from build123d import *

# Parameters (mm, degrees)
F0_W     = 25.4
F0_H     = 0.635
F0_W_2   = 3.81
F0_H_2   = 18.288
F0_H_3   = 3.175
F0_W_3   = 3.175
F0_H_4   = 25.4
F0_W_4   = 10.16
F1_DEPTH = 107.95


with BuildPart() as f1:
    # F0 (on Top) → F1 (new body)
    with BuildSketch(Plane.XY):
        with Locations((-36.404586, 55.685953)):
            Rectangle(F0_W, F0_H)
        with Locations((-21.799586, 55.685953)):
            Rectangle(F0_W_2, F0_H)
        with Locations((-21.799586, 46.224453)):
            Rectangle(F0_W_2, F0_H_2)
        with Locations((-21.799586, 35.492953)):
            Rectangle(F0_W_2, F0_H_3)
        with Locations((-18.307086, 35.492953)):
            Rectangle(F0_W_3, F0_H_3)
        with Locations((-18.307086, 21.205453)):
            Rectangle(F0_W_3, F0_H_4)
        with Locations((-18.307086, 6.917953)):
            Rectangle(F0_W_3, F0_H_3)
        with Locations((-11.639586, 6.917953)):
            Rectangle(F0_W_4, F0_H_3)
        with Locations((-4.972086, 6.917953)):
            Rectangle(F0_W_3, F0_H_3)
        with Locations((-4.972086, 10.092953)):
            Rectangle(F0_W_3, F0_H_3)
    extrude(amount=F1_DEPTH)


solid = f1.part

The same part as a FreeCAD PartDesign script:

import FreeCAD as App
import Part
import Sketcher
from FreeCAD import Vector
Q = App.Units.Quantity

doc = App.newDocument("Part")
body = doc.addObject("PartDesign::Body", "Body")

# Sketch on XY plane
sketch1 = doc.addObject("Sketcher::SketchObject", "Sketch")
body.addObject(sketch1)
sketch1.AttachmentSupport = (doc.XY_Plane, [""])
sketch1.MapMode = "FlatFace"
sketch1.addGeometry([
    Part.LineSegment(Vector(-49.1, 56, 0), Vector(-49.1, 55.4, 0)),  # 0
    Part.LineSegment(Vector(-49.1, 55.4, 0), Vector(-23.7, 55.4, 0)),  # 1
    Part.LineSegment(Vector(-23.7, 55.4, 0), Vector(-23.7, 33.9, 0)),  # 2
    Part.LineSegment(Vector(-23.7, 33.9, 0), Vector(-19.9, 33.9, 0)),  # 3
    Part.LineSegment(Vector(-19.9, 33.9, 0), Vector(-19.9, 5.3, 0)),  # 4
    Part.LineSegment(Vector(-19.9, 5.3, 0), Vector(-3.4, 5.3, 0)),  # 5
    Part.LineSegment(Vector(-3.4, 5.3, 0), Vector(-3.4, 11.7, 0)),  # 6
    Part.LineSegment(Vector(-3.4, 11.7, 0), Vector(-6.6, 11.7, 0)),  # 7
    Part.LineSegment(Vector(-6.6, 11.7, 0), Vector(-6.6, 8.5, 0)),  # 8
    Part.LineSegment(Vector(-6.6, 8.5, 0), Vector(-16.7, 8.5, 0)),  # 9
    Part.LineSegment(Vector(-16.7, 8.5, 0), Vector(-16.7, 37.1, 0)),  # 10
    Part.LineSegment(Vector(-16.7, 37.1, 0), Vector(-19.9, 37.1, 0)),  # 11
    Part.LineSegment(Vector(-19.9, 37.1, 0), Vector(-19.9, 56, 0)),  # 12
    Part.LineSegment(Vector(-19.9, 56, 0), Vector(-49.1, 56, 0)),  # 13
], False)
sketch1.addConstraint([
    Sketcher.Constraint("Coincident", 0, 2, 1, 1),
    Sketcher.Constraint("Coincident", 1, 2, 2, 1),
    Sketcher.Constraint("Coincident", 2, 2, 3, 1),
    Sketcher.Constraint("Coincident", 3, 2, 4, 1),
    Sketcher.Constraint("Coincident", 4, 2, 5, 1),
    Sketcher.Constraint("Coincident", 5, 2, 6, 1),
    Sketcher.Constraint("Coincident", 6, 2, 7, 1),
    Sketcher.Constraint("Coincident", 7, 2, 8, 1),
    Sketcher.Constraint("Coincident", 8, 2, 9, 1),
    Sketcher.Constraint("Coincident", 9, 2, 10, 1),
    Sketcher.Constraint("Coincident", 10, 2, 11, 1),
    Sketcher.Constraint("Coincident", 11, 2, 12, 1),
    Sketcher.Constraint("Coincident", 12, 2, 13, 1),
    Sketcher.Constraint("Coincident", 13, 2, 0, 1),
    Sketcher.Constraint("Vertical", 0),
    Sketcher.Constraint("Horizontal", 1),
    Sketcher.Constraint("Vertical", 2),
    Sketcher.Constraint("Horizontal", 3),
    Sketcher.Constraint("Vertical", 4),
    Sketcher.Constraint("Horizontal", 5),
    Sketcher.Constraint("Vertical", 6),
    Sketcher.Constraint("Horizontal", 7),
    Sketcher.Constraint("Vertical", 8),
    Sketcher.Constraint("Horizontal", 9),
    Sketcher.Constraint("Vertical", 10),
    Sketcher.Constraint("Horizontal", 11),
    Sketcher.Constraint("Vertical", 12),
    Sketcher.Constraint("Horizontal", 13),
    Sketcher.Constraint("Vertical", 4, 2, 11, 2),
    Sketcher.Constraint("Equal", 7, 11),
    Sketcher.Constraint("Equal", 11, 8),
    Sketcher.Constraint("Equal", 4, 10),
    Sketcher.Constraint("DistanceX", 1, 1, 1, 2, Q("1 in")),
    Sketcher.Constraint("DistanceX", 9, 2, 9, 1, Q("0.4 in")),
    Sketcher.Constraint("DistanceY", 8, 2, 3, 2, Q("1 in")),
    Sketcher.Constraint("DistanceY", 7, 2, 10, 2, Q("1 in")),
    Sketcher.Constraint("DistanceX", 3, 1, 3, 2, Q("0.15 in")),
    Sketcher.Constraint("DistanceX", 5, 1, 5, 2, Q("0.65 in")),
    Sketcher.Constraint("DistanceY", 0, 2, 0, 1, Q("0.025 in")),
    Sketcher.Constraint("DistanceY", 2, 2, 2, 1, Q("0.845 in")),
    Sketcher.Constraint("DistanceX", 0, 2, -1, 1, 49.104586),
    Sketcher.Constraint("DistanceY", -1, 1, 0, 2, 55.368453),
])
pad1 = doc.addObject("PartDesign::Pad", "Pad")
body.addObject(pad1)
pad1.Profile = sketch1
pad1.Length = Q("4.25 in")

doc.recompute()
